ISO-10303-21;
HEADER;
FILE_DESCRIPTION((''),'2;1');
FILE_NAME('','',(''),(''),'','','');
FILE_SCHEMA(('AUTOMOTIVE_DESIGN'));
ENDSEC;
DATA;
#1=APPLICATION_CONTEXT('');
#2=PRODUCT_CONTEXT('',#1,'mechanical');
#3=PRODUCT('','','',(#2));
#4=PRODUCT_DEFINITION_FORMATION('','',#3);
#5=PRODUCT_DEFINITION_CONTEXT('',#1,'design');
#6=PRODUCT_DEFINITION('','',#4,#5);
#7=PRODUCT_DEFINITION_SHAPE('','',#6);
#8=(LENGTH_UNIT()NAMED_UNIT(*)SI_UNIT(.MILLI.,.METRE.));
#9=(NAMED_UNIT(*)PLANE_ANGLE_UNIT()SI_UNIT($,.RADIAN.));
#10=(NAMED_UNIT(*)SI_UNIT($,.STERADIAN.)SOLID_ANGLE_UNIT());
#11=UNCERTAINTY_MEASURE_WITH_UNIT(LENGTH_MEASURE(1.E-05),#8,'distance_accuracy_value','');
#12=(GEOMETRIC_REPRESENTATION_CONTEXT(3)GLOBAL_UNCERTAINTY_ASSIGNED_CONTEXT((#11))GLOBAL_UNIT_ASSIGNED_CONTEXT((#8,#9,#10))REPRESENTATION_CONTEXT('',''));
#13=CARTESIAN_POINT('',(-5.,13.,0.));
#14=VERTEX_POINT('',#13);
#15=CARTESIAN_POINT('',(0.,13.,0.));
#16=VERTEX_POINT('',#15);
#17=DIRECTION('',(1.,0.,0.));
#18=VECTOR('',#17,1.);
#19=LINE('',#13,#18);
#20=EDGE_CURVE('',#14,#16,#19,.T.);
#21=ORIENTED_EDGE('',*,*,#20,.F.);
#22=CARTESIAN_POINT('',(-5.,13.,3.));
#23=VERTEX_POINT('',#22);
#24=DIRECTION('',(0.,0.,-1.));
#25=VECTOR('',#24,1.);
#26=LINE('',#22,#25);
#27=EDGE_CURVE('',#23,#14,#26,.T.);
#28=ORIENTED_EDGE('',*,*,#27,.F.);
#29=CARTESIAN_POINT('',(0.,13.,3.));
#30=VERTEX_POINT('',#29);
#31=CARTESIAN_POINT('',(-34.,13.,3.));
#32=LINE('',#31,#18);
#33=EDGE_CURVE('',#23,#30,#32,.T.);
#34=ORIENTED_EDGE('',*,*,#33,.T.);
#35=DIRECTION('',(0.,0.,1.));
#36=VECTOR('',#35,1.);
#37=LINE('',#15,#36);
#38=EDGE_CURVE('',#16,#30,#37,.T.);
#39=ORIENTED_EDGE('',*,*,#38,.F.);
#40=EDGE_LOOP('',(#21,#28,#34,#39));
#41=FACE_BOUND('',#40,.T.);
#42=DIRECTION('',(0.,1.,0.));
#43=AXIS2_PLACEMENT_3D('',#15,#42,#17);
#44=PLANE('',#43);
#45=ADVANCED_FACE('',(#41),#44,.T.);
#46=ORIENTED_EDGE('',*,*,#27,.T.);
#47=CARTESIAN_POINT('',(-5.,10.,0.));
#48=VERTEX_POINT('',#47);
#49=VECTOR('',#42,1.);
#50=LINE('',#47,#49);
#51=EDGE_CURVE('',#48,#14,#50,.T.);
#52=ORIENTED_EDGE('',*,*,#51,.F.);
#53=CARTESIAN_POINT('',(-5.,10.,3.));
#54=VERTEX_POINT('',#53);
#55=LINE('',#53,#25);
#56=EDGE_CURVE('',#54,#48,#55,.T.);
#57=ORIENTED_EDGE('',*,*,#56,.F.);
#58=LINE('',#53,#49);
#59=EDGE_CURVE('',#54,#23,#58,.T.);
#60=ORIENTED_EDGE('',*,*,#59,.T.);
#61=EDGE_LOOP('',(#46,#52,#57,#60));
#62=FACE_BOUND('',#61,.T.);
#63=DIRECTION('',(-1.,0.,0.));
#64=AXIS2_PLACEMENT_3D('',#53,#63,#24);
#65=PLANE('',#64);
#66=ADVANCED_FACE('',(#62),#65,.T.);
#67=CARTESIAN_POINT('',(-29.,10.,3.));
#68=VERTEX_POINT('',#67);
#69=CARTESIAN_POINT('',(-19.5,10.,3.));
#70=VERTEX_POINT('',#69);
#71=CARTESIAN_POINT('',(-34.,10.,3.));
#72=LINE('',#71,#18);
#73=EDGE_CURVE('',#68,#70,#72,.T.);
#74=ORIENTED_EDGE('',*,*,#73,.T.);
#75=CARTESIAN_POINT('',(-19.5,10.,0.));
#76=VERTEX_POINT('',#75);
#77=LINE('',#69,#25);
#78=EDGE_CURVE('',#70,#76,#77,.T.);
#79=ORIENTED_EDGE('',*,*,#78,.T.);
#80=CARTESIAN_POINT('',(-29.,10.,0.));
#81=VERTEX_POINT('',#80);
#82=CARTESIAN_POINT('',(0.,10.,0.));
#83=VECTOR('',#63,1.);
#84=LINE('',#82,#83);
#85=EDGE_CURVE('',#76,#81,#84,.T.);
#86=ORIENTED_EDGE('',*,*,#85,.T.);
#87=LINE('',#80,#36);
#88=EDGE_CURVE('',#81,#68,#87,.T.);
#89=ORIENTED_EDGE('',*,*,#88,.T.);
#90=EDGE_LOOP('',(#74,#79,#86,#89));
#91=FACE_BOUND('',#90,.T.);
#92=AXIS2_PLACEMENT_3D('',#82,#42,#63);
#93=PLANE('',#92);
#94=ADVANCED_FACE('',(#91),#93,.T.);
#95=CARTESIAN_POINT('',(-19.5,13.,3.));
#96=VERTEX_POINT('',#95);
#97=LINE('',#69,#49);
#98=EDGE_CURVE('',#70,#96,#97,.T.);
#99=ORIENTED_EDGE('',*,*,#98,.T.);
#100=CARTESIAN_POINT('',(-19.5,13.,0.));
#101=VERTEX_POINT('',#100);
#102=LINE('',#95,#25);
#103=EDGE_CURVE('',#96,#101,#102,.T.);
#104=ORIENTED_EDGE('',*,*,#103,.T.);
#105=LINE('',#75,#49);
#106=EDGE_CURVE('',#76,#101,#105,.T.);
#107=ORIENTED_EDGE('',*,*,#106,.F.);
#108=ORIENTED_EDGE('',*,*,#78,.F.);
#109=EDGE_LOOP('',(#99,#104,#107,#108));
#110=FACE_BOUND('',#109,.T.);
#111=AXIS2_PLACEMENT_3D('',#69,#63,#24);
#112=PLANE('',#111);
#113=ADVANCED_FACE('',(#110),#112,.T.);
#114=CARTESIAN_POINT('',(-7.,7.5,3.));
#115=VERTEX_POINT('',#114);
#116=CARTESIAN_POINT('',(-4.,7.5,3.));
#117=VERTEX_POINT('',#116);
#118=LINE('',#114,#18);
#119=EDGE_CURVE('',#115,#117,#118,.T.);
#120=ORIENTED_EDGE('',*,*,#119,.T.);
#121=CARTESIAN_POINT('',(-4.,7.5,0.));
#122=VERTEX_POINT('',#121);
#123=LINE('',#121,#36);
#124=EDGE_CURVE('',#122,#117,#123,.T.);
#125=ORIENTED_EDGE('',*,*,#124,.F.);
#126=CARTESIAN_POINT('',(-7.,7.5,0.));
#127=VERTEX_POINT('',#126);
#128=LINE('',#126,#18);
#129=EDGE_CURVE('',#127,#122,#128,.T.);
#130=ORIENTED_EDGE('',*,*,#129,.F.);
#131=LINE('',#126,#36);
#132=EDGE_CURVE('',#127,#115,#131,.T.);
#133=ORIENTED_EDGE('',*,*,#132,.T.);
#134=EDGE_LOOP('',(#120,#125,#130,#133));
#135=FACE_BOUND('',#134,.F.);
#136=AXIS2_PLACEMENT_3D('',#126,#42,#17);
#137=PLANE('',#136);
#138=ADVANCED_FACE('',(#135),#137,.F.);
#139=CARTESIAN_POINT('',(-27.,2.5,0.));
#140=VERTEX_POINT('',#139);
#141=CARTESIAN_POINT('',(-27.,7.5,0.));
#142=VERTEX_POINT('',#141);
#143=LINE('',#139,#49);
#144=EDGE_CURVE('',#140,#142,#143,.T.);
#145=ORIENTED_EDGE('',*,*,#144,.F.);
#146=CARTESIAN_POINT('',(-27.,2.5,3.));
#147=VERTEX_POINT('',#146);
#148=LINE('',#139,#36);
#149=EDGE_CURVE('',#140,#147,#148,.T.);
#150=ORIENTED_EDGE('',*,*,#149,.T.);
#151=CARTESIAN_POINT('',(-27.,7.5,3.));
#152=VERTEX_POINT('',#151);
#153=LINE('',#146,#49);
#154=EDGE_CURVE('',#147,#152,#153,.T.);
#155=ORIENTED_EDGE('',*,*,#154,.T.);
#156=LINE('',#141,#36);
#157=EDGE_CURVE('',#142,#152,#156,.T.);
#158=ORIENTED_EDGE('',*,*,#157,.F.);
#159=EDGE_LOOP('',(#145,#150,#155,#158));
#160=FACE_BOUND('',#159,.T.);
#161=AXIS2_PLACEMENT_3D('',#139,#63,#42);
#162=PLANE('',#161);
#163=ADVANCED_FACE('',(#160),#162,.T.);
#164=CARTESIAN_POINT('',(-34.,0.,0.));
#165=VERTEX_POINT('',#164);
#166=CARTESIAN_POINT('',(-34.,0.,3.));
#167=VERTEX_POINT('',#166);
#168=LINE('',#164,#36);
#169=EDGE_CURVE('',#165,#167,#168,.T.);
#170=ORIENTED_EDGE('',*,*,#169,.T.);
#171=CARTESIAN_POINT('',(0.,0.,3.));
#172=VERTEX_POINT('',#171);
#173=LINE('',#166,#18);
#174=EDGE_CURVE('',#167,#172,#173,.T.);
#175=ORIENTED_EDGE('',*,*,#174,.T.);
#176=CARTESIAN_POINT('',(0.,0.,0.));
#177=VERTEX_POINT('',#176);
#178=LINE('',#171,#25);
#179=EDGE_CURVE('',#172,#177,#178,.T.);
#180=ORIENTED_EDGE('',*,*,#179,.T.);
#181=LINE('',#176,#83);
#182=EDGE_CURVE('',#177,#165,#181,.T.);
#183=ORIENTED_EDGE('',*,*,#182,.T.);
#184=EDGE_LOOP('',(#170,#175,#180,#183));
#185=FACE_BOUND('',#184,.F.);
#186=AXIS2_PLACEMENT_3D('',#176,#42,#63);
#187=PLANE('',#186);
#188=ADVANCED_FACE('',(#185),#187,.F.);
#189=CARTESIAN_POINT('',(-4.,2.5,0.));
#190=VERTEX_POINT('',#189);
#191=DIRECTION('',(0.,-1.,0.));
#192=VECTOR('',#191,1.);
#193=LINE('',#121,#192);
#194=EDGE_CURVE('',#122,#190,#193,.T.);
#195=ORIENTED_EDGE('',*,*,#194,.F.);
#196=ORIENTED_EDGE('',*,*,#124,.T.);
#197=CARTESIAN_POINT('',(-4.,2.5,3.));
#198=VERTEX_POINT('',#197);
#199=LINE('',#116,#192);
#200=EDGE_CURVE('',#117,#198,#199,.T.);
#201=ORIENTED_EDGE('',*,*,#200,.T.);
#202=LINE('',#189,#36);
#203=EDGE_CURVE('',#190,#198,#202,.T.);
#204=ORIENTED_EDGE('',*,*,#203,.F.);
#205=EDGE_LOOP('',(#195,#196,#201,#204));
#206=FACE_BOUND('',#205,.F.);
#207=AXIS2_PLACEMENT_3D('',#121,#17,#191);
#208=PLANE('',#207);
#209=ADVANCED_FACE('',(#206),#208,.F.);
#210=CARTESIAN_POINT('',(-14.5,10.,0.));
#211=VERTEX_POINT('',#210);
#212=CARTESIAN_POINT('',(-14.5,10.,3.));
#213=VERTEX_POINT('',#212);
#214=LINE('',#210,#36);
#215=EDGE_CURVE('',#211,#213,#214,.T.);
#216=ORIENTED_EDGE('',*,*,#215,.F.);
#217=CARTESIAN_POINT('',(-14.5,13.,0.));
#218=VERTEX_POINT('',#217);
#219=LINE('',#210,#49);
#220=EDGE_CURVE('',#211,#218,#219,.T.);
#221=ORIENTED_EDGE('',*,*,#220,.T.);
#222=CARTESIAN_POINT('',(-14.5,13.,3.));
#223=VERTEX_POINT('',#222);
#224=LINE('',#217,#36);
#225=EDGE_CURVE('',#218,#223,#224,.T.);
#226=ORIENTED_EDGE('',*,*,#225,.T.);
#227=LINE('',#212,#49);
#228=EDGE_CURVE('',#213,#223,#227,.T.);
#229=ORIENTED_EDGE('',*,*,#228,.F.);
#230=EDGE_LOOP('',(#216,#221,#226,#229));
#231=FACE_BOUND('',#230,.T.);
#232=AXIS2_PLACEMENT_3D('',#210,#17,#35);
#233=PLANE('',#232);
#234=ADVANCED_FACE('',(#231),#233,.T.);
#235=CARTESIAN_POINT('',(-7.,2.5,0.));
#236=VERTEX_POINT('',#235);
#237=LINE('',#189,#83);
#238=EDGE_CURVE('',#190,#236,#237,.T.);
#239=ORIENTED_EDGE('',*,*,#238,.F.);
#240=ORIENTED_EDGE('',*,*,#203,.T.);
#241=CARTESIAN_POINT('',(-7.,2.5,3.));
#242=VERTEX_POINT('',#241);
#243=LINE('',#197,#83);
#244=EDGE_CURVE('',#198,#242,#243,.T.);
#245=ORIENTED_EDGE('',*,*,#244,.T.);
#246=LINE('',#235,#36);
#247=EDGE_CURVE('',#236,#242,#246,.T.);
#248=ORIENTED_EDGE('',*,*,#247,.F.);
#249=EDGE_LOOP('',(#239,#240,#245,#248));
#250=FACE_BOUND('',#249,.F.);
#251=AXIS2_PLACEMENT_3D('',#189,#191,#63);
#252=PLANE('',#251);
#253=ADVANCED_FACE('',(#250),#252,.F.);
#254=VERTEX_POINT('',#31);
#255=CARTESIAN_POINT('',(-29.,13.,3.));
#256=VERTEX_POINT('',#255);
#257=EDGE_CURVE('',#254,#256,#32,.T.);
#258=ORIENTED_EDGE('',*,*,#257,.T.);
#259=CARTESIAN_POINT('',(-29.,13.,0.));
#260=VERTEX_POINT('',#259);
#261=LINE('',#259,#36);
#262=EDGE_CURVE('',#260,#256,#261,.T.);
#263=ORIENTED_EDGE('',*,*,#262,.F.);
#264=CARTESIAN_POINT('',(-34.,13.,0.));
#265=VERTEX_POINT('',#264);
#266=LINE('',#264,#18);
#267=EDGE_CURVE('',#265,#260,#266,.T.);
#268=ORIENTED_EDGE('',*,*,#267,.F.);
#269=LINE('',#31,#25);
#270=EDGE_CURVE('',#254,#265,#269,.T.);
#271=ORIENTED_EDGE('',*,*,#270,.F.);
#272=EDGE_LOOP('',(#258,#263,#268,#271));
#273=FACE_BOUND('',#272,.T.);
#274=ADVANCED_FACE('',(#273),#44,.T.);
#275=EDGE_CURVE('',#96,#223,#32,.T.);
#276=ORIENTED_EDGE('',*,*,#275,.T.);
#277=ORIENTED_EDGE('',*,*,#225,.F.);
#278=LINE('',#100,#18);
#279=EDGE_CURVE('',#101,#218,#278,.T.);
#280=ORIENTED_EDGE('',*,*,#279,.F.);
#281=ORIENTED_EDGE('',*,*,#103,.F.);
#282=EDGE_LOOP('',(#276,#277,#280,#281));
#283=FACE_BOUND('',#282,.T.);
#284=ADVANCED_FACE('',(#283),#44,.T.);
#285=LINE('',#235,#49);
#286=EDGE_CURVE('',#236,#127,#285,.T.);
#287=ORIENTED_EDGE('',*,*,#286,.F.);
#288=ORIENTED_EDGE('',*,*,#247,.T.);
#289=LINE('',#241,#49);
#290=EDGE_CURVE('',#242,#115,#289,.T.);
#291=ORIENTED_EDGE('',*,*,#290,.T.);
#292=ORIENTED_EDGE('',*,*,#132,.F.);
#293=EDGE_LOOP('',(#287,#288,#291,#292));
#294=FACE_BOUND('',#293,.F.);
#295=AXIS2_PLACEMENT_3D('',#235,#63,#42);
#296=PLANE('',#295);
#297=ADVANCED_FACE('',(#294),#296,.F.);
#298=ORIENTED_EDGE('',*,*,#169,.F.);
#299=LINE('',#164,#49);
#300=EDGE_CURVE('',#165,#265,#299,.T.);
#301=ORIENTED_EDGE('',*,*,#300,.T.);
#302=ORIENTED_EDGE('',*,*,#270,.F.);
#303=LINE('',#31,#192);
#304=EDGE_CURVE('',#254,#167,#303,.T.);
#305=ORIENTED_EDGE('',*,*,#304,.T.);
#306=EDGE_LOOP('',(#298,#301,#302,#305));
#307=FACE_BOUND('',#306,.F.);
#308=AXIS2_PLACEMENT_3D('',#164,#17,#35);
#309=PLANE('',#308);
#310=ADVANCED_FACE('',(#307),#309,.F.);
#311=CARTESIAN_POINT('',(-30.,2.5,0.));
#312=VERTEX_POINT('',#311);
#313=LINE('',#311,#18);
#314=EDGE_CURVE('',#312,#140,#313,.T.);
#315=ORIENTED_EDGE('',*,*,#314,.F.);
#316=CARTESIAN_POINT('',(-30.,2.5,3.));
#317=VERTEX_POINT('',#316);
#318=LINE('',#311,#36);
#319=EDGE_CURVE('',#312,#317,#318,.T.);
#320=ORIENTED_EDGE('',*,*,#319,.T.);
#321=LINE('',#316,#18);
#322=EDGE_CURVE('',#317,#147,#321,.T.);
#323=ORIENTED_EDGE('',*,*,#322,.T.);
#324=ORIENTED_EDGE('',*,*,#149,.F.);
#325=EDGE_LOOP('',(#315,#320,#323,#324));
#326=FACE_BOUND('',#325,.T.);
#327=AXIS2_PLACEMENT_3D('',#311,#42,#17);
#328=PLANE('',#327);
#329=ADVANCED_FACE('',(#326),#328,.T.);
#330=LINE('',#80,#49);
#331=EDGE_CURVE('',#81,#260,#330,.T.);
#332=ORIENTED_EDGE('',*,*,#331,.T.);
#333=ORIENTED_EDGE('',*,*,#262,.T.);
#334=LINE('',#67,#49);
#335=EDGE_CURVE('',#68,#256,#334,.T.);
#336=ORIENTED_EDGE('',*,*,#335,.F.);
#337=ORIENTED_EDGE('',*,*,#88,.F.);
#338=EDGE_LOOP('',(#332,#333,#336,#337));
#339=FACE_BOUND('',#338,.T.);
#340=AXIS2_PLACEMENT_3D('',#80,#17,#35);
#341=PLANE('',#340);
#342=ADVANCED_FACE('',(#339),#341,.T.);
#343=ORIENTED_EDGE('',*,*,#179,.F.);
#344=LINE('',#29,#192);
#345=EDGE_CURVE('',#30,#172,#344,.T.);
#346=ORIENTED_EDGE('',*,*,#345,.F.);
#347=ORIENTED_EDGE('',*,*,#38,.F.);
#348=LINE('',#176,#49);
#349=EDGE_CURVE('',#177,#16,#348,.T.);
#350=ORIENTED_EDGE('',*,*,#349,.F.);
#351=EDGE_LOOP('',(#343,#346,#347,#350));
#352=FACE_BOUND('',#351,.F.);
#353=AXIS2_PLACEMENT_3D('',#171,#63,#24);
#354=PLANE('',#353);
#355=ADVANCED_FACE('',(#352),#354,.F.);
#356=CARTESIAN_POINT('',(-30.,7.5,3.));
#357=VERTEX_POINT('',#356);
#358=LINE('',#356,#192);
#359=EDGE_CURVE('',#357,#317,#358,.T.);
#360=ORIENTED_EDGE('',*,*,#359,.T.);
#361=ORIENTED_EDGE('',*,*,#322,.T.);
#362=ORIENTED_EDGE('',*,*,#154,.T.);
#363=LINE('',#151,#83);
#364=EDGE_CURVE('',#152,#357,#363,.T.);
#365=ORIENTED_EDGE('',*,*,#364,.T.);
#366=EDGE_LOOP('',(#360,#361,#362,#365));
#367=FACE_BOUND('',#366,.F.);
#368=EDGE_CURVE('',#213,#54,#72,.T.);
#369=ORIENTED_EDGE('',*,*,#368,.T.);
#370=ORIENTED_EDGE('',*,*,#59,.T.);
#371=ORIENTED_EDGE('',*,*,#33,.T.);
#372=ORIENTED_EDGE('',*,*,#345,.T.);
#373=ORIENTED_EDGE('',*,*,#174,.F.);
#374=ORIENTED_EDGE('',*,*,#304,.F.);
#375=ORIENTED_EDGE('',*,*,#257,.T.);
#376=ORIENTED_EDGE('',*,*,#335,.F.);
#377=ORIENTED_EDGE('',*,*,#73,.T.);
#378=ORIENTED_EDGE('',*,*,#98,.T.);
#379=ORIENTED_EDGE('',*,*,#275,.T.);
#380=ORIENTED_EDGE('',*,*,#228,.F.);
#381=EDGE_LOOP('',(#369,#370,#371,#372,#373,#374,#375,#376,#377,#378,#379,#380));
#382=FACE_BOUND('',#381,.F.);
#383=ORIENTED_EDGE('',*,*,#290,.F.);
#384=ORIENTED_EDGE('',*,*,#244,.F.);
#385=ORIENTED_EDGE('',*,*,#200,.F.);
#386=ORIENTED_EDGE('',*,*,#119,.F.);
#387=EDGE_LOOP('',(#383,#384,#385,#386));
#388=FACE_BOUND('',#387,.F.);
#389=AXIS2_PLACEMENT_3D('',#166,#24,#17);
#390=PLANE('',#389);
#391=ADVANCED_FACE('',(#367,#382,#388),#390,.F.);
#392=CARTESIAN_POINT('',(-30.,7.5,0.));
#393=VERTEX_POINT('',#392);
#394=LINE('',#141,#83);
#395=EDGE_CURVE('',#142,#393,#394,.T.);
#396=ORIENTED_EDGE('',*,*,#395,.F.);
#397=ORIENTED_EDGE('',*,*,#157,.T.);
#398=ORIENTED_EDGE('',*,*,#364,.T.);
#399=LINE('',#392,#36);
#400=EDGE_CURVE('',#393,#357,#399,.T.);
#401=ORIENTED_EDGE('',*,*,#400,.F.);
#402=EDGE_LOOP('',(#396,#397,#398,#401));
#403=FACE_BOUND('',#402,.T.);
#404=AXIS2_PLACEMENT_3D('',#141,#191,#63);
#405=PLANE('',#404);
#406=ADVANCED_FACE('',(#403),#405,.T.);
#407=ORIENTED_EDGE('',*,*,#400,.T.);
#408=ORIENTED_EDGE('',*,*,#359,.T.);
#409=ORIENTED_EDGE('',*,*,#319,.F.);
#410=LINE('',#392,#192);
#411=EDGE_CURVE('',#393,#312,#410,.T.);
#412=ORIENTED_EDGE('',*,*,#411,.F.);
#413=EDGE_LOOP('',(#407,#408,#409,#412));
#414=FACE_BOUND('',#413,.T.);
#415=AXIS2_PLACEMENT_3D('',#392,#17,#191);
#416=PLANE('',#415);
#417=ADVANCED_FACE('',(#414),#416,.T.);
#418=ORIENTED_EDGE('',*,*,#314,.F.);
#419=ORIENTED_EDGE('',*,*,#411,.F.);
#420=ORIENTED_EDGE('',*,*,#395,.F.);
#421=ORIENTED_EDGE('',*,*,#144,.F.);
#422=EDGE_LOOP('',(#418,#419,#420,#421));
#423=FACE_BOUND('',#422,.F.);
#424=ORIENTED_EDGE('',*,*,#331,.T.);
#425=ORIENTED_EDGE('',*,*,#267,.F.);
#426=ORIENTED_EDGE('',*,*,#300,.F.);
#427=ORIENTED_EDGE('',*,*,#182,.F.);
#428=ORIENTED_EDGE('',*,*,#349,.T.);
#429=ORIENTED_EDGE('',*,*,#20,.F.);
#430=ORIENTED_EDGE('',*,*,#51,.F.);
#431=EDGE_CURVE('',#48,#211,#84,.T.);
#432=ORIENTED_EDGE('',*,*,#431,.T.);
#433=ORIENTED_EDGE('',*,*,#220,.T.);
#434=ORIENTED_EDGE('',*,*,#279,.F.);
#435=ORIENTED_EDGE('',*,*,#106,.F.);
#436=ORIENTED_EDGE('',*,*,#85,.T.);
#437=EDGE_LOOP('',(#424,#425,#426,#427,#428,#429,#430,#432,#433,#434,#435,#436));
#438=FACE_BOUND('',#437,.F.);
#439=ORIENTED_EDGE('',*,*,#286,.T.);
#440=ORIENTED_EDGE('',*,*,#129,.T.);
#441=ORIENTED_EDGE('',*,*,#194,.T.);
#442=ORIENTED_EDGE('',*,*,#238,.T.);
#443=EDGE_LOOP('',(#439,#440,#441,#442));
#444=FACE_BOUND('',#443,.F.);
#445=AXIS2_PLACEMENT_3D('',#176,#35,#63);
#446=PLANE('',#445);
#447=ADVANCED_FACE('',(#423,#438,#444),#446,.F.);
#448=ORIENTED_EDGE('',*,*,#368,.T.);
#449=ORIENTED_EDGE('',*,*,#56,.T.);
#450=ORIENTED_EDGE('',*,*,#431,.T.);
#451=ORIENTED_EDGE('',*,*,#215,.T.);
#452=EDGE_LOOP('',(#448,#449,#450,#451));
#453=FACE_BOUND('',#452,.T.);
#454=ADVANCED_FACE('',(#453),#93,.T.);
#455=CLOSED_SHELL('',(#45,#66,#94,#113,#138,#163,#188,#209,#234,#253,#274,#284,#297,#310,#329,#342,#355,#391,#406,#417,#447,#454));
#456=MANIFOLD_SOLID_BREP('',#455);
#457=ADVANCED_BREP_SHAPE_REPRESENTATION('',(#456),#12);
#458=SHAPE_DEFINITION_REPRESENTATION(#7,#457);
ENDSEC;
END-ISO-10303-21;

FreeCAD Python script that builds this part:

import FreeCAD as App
import Part
import Sketcher
Q = App.Units.Quantity


def add_polygon(sketch, points):
    """Adds a closed chain of lines whose ends are joined by coincident constraints."""
    first, n = sketch.GeometryCount, len(points)
    for a, b in zip(points, points[1:] + points[:1]):
        sketch.addGeometry(Part.LineSegment(App.Vector(*a, 0), App.Vector(*b, 0)), False)
    for i in range(n):
        sketch.addConstraint(Sketcher.Constraint("Coincident", first + i, 2, first + (i + 1) % n, 1))

doc = App.newDocument("Part")
body = doc.addObject("PartDesign::Body", "Body")

# Sketch on XZ plane
sketch1 = body.newObject("Sketcher::SketchObject", "Sketch")
sketch1.AttachmentSupport = (doc.getObject("XZ_Plane"), [""])
sketch1.MapMode = "FlatFace"
add_polygon(sketch1, [(0, 3), (0, 0), (-34, 0), (-34, 3)])  # lines 0-3
sketch1.addConstraint(Sketcher.Constraint("Vertical", 0))
sketch1.addConstraint(Sketcher.Constraint("Horizontal", 1))
sketch1.addConstraint(Sketcher.Constraint("Vertical", 2))
sketch1.addConstraint(Sketcher.Constraint("Horizontal", 3))
sketch1.addConstraint(Sketcher.Constraint("Coincident", 0, 2, -1, 1))
sketch1.addConstraint(Sketcher.Constraint("DistanceX", 1, 2, 1, 1, Q("34 mm")))
sketch1.addConstraint(Sketcher.Constraint("DistanceY", 0, 2, 0, 1, Q("3 mm")))
pad1 = body.newObject("PartDesign::Pad", "Pad")
pad1.Profile = sketch1
pad1.Length = 10
pad1.Reversed = True

# Sketch on XZ plane
sketch2 = body.newObject("Sketcher::SketchObject", "Sketch001")
sketch2.AttachmentSupport = (doc.getObject("XZ_Plane"), [""])
sketch2.MapMode = "FlatFace"
sketch2.AttachmentOffset = App.Placement(App.Vector(0, 0, -10), App.Rotation())
add_polygon(sketch2, [(-34, 0), (-34, 3), (-29, 3), (-29, 0)])  # lines 0-3
add_polygon(sketch2, [(-5, 0), (-5, 3), (0, 3), (0, 0)])  # lines 4-7
add_polygon(sketch2, [(-19.5, 0), (-19.5, 3), (-14.5, 3), (-14.5, 0)])  # lines 8-11
sketch2.addConstraint(Sketcher.Constraint("Vertical", 0))
sketch2.addConstraint(Sketcher.Constraint("Horizontal", 1))
sketch2.addConstraint(Sketcher.Constraint("Vertical", 2))
sketch2.addConstraint(Sketcher.Constraint("Horizontal", 3))
sketch2.addConstraint(Sketcher.Constraint("Vertical", 4))
sketch2.addConstraint(Sketcher.Constraint("Horizontal", 5))
sketch2.addConstraint(Sketcher.Constraint("Vertical", 6))
sketch2.addConstraint(Sketcher.Constraint("Horizontal", 7))
sketch2.addConstraint(Sketcher.Constraint("Vertical", 8))
sketch2.addConstraint(Sketcher.Constraint("Horizontal", 9))
sketch2.addConstraint(Sketcher.Constraint("Vertical", 10))
sketch2.addConstraint(Sketcher.Constraint("Horizontal", 11))
sketch2.addConstraint(Sketcher.Constraint("Coincident", 6, 2, -1, 1))
sketch2.addConstraint(Sketcher.Constraint("PointOnObject", 2, 2, -1))
sketch2.addConstraint(Sketcher.Constraint("PointOnObject", 10, 2, -1))
sketch2.addConstraint(Sketcher.Constraint("Horizontal", 1, 2, 4, 2))
sketch2.addConstraint(Sketcher.Constraint("Horizontal", 5, 2, 8, 2))
sketch2.addConstraint(Sketcher.Constraint("Equal", 3, 5))
sketch2.addConstraint(Sketcher.Constraint("Equal", 7, 9))
sketch2.addConstraint(Sketcher.Constraint("DistanceX", 1, 1, 1, 2, Q("5 mm")))
sketch2.addConstraint(Sketcher.Constraint("DistanceY", 0, 1, 0, 2, Q("3 mm")))
sketch2.addConstraint(Sketcher.Constraint("DistanceX", 1, 2, 8, 2, Q("9.5 mm")))
sketch2.addConstraint(Sketcher.Constraint("DistanceX", 9, 2, 4, 2, Q("9.5 mm")))
pad2 = body.newObject("PartDesign::Pad", "Pad001")
pad2.Profile = sketch2
pad2.Length = 3
pad2.Reversed = True

# Sketch on XY plane
sketch3 = body.newObject("Sketcher::SketchObject", "Sketch002")
sketch3.AttachmentSupport = (doc.getObject("XY_Plane"), [""])
sketch3.MapMode = "FlatFace"
add_polygon(sketch3, [(-27, 2.5), (-30, 2.5), (-30, 7.5), (-27, 7.5)])  # lines 0-3
add_polygon(sketch3, [(-4, 2.5), (-7, 2.5), (-7, 7.5), (-4, 7.5)])  # lines 4-7
sketch3.addConstraint(Sketcher.Constraint("Horizontal", 0))
sketch3.addConstraint(Sketcher.Constraint("Vertical", 1))
sketch3.addConstraint(Sketcher.Constraint("Horizontal", 2))
sketch3.addConstraint(Sketcher.Constraint("Vertical", 3))
sketch3.addConstraint(Sketcher.Constraint("Horizontal", 4))
sketch3.addConstraint(Sketcher.Constraint("Vertical", 5))
sketch3.addConstraint(Sketcher.Constraint("Horizontal", 6))
sketch3.addConstraint(Sketcher.Constraint("Vertical", 7))
sketch3.addConstraint(Sketcher.Constraint("Horizontal", 3, 2, 4, 2))
sketch3.addConstraint(Sketcher.Constraint("Horizontal", 2, 2, 5, 2))
sketch3.addConstraint(Sketcher.Constraint("Equal", 2, 4))
sketch3.addConstraint(Sketcher.Constraint("DistanceX", 0, 2, 0, 1, Q("3 mm")))
sketch3.addConstraint(Sketcher.Constraint("DistanceY", 1, 1, 1, 2, Q("5 mm")))
sketch3.addConstraint(Sketcher.Constraint("DistanceX", 6, 2, -1, 1, Q("4 mm")))
sketch3.addConstraint(Sketcher.Constraint("DistanceY", -1, 1, 0, 2, Q("2.5 mm")))
sketch3.addConstraint(Sketcher.Constraint("DistanceX", 0, 2, -1, 1, Q("30 mm")))
pocket1 = body.newObject("PartDesign::Pocket", "Pocket")
pocket1.Profile = sketch3
pocket1.Length = 3
pocket1.Reversed = True

doc.recompute()
